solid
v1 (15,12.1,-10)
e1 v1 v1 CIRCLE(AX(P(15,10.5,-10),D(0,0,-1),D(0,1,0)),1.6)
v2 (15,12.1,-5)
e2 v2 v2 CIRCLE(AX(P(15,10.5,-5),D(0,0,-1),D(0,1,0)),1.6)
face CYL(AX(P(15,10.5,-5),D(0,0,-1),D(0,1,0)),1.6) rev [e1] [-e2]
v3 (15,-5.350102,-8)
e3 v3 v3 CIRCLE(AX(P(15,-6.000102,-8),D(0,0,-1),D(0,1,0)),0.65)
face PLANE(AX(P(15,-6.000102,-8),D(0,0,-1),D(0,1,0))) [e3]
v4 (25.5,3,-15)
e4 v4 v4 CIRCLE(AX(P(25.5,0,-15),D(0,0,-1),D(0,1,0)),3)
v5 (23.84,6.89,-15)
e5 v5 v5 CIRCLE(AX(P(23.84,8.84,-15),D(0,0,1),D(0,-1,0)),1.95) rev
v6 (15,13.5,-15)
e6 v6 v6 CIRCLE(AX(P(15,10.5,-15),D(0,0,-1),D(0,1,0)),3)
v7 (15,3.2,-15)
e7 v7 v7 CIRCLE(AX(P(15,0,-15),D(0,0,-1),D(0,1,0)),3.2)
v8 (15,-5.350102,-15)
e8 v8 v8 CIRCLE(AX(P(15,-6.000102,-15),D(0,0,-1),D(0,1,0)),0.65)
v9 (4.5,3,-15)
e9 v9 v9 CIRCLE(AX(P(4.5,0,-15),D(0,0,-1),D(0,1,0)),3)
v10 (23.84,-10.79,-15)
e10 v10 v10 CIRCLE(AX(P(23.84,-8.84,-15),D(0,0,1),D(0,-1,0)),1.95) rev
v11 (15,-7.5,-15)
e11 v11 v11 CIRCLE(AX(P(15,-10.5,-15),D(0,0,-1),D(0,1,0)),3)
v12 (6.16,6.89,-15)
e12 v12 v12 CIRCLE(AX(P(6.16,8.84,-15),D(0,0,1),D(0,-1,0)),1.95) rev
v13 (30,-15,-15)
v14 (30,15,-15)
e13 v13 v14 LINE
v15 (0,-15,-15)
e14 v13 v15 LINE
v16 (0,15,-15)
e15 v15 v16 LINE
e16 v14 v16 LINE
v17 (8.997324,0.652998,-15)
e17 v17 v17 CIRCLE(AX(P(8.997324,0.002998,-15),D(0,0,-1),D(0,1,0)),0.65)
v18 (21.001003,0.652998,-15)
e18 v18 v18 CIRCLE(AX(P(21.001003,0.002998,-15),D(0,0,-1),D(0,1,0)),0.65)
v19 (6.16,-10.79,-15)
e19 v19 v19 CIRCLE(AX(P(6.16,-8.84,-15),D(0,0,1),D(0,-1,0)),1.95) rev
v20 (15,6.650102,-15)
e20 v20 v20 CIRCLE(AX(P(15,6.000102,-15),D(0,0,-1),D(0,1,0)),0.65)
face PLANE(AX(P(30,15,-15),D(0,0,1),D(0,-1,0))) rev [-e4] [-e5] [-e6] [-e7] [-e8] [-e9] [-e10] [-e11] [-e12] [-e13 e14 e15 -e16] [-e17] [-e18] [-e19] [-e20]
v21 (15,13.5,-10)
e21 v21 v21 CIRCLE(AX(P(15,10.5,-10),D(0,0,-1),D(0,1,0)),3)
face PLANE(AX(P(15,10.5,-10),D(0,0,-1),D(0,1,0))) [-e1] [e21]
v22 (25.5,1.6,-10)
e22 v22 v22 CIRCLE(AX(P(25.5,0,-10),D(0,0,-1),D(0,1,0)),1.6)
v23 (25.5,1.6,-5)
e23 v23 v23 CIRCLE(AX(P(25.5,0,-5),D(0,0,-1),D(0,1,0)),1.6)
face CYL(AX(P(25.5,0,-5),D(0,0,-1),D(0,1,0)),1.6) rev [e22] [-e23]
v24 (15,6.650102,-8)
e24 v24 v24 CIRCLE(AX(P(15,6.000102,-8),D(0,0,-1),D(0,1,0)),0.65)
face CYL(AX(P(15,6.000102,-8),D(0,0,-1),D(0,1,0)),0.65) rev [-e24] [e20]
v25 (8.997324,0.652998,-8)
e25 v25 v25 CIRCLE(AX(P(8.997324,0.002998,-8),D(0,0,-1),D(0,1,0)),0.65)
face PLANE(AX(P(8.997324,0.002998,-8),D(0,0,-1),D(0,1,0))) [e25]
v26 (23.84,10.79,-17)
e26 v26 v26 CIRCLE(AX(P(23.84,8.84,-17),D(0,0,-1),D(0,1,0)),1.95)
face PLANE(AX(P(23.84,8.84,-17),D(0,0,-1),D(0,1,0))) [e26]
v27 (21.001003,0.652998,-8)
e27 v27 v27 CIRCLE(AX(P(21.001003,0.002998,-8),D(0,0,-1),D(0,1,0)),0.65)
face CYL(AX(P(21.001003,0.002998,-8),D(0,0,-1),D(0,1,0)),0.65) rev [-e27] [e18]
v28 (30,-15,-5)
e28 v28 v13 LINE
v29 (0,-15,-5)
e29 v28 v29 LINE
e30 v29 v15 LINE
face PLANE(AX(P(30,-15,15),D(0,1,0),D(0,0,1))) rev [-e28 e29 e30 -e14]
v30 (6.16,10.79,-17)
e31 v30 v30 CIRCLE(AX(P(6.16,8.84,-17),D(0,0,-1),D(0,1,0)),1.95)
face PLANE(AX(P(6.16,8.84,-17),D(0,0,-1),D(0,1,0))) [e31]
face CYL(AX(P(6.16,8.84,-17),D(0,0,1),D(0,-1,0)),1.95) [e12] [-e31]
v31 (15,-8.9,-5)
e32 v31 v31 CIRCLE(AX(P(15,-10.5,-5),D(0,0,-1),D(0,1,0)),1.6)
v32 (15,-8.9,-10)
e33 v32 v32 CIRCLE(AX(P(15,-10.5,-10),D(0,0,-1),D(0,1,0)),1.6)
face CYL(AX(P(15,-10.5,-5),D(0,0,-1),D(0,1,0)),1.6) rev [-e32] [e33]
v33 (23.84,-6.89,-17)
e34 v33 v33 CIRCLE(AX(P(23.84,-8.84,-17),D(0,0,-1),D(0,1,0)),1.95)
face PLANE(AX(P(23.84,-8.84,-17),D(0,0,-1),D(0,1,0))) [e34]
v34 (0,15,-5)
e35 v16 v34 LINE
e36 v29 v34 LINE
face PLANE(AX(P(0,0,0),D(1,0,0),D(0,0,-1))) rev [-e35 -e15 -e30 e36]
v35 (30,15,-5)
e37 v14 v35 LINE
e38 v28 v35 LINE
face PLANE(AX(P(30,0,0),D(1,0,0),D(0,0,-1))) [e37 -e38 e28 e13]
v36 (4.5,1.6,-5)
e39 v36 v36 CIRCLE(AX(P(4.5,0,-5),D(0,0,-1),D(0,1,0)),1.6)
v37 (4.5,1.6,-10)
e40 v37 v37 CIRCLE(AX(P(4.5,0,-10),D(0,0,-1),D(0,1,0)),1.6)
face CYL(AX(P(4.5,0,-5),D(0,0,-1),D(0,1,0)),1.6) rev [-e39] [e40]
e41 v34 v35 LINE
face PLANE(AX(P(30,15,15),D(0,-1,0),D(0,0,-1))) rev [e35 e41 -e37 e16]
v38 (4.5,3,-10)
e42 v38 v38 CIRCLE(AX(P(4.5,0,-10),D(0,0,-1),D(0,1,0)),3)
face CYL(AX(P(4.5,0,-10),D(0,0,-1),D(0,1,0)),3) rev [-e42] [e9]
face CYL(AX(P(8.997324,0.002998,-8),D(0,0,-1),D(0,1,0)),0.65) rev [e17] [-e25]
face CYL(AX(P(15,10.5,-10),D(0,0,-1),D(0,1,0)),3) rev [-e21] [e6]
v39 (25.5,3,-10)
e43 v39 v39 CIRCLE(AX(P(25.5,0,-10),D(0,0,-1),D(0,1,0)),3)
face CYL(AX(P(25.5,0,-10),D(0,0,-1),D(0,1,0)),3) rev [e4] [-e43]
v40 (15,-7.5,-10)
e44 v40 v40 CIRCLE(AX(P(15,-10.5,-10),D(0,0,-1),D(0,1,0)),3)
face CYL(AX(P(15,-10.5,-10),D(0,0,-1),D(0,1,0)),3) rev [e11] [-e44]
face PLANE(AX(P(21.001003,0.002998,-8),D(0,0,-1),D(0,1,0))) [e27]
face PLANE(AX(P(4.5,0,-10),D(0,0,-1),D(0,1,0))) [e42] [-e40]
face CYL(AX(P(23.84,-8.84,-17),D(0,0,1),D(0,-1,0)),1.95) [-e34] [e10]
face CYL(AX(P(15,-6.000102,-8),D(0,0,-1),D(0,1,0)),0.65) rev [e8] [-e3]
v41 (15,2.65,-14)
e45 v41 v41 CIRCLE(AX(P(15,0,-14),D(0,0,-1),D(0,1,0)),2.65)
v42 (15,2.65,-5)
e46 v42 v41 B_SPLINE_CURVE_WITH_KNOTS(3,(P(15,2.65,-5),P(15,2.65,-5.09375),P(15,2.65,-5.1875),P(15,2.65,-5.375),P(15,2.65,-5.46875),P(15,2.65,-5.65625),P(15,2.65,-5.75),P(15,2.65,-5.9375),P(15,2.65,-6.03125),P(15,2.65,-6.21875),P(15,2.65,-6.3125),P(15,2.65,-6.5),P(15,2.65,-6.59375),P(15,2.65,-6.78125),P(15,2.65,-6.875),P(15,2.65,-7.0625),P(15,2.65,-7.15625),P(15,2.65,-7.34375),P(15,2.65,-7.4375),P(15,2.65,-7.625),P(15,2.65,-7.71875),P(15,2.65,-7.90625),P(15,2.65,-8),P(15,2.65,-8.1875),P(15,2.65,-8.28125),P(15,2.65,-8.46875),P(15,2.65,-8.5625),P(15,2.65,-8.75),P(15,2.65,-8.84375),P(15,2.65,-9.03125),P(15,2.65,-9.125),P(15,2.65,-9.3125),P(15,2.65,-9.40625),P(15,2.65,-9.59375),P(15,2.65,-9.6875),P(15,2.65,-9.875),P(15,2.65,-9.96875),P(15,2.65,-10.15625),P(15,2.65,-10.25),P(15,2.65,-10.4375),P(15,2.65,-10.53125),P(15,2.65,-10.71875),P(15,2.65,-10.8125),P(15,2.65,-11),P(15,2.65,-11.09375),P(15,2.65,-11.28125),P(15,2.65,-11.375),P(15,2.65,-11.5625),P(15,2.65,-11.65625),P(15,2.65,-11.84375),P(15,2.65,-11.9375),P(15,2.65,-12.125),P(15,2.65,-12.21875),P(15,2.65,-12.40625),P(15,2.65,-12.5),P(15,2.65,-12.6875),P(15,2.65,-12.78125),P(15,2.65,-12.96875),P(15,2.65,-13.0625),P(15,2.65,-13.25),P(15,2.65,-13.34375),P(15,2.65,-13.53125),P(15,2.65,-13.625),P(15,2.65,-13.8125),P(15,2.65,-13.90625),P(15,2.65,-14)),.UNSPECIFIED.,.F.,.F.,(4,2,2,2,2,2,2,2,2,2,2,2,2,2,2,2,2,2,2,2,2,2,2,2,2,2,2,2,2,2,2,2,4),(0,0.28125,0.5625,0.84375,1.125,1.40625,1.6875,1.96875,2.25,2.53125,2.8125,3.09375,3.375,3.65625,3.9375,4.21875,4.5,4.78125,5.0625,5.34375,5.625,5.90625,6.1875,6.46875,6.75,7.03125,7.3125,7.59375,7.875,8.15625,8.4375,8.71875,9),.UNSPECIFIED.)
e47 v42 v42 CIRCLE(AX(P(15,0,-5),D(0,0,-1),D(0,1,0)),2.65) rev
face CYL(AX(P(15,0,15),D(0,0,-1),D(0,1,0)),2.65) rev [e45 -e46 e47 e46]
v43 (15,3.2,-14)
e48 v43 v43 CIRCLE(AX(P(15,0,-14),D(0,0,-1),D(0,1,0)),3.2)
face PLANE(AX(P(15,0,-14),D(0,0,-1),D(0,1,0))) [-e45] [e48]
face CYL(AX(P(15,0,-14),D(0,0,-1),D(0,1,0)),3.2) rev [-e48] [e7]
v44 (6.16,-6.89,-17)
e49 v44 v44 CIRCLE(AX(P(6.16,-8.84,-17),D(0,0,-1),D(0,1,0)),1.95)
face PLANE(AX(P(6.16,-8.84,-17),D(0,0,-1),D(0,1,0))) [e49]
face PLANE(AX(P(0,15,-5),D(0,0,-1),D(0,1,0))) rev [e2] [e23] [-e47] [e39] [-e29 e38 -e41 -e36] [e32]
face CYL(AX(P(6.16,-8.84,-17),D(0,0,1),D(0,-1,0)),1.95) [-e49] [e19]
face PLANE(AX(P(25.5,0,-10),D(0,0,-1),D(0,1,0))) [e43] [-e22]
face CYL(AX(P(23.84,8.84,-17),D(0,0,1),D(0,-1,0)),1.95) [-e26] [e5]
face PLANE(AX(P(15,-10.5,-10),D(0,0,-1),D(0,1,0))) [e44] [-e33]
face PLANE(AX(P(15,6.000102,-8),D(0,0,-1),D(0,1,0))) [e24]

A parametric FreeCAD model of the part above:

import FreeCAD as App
import Part
import Sketcher

V = App.Vector


def add_polygon(sketch, points):
    """Adds a closed chain of lines whose ends are joined by coincident constraints."""
    first, n = sketch.GeometryCount, len(points)
    for a, b in zip(points, points[1:] + points[:1]):
        sketch.addGeometry(Part.LineSegment(App.Vector(*a, 0), App.Vector(*b, 0)), False)
    for i in range(n):
        sketch.addConstraint(Sketcher.Constraint("Coincident", first + i, 2, first + (i + 1) % n, 1))

doc = App.newDocument("Part")
body = doc.addObject("PartDesign::Body", "Body")

# Sketch on YZ plane
sketch1 = doc.addObject("Sketcher::SketchObject", "Sketch")
body.addObject(sketch1)
sketch1.AttachmentSupport = (doc.YZ_Plane, [""])
sketch1.MapMode = "FlatFace"
add_polygon(sketch1, [(15, 15), (-15, 15), (-15, -15), (15, -15)])  # lines 0-3
sketch1.addConstraint([
    Sketcher.Constraint("Horizontal", 0),
    Sketcher.Constraint("Vertical", 1),
    Sketcher.Constraint("Horizontal", 2),
    Sketcher.Constraint("Vertical", 3),
    Sketcher.Constraint("Symmetric", 0, 2, 2, 2, -1, 1),
    Sketcher.Constraint("Equal", 2, 1),
    Sketcher.Constraint("DistanceX", 0, 2, 0, 1, 30.0),
])
pad1 = doc.addObject("PartDesign::Pad", "Pad")
body.addObject(pad1)
pad1.Profile = sketch1
pad1.Length = 30

# Sketch on XY plane
sketch2 = doc.addObject("Sketcher::SketchObject", "Sketch001")
body.addObject(sketch2)
sketch2.AttachmentSupport = (doc.XY_Plane, [""])
sketch2.MapMode = "FlatFace"
sketch2.AttachmentOffset = App.Placement(V(0, 0, -15), App.Rotation())
sketch2.addGeometry([
    Part.Circle(V(15, 6, 0), V(0, 0, 1), 0.7),
    Part.Circle(V(21, 0, 0), V(0, 0, 1), 0.7),
    Part.Circle(V(9, 0, 0), V(0, 0, 1), 0.7),
    Part.Circle(V(15, -6, 0), V(0, 0, 1), 0.7),
], False)
sketch2.addConstraint([
    Sketcher.Constraint("Equal", 0, 1),
    Sketcher.Constraint("Equal", 1, 2),
    Sketcher.Constraint("Equal", 2, 3),
    Sketcher.Constraint("Symmetric", 0, 3, 3, 3, -1),
    Sketcher.Constraint("Horizontal", 1, 3, 2, 3),
    Sketcher.Constraint("Diameter", 0, 1.3),
    Sketcher.Constraint("DistanceX", -1, 1, 0, 3, 15.0),
    Sketcher.Constraint("DistanceY", -1, 1, 0, 3, 6.000102),
    Sketcher.Constraint("DistanceY", 3, 3, 1, 3, 6.0031),
    Sketcher.Constraint("DistanceX", 2, 3, 1, 3, 12.003679),
    Sketcher.Constraint("DistanceX", -1, 1, 1, 3, 21.001003),
])
pocket1 = doc.addObject("PartDesign::Pocket", "Pocket")
body.addObject(pocket1)
pocket1.Profile = sketch2
pocket1.Length = 7
pocket1.Reversed = True

# Sketch on XY plane
sketch3 = doc.addObject("Sketcher::SketchObject", "Sketch002")
body.addObject(sketch3)
sketch3.AttachmentSupport = (doc.XY_Plane, [""])
sketch3.MapMode = "FlatFace"
sketch3.AttachmentOffset = App.Placement(V(0, 0, -15), App.Rotation())
sketch3.addGeometry([
    Part.Circle(V(6.2, 8.8, 0), V(0, 0, 1), 1.9),
    Part.Circle(V(23.8, 8.8, 0), V(0, 0, 1), 1.9),
    Part.Circle(V(23.8, -8.8, 0), V(0, 0, 1), 1.9),
    Part.Circle(V(6.2, -8.8, 0), V(0, 0, 1), 1.9),
], False)
sketch3.addConstraint([
    Sketcher.Constraint("Equal", 0, 1),
    Sketcher.Constraint("Equal", 1, 2),
    Sketcher.Constraint("Equal", 2, 3),
    Sketcher.Constraint("Symmetric", 1, 3, 2, 3, -1),
    Sketcher.Constraint("Symmetric", 0, 3, 3, 3, -1),
    Sketcher.Constraint("Horizontal", 0, 3, 1, 3),
    Sketcher.Constraint("Diameter", 0, 3.9),
    Sketcher.Constraint("DistanceX", -1, 1, 0, 3, 6.16),
    Sketcher.Constraint("DistanceY", -1, 1, 0, 3, 8.84),
    Sketcher.Constraint("DistanceX", -1, 1, 1, 3, 23.84),
])
pad2 = doc.addObject("PartDesign::Pad", "Pad001")
body.addObject(pad2)
pad2.Profile = sketch3
pad2.Length = 2
pad2.Reversed = True

# Sketch on XY plane
sketch4 = doc.addObject("Sketcher::SketchObject", "Sketch003")
body.addObject(sketch4)
sketch4.AttachmentSupport = (doc.XY_Plane, [""])
sketch4.MapMode = "FlatFace"
sketch4.AttachmentOffset = App.Placement(V(0, 0, -15), App.Rotation())
sketch4.addGeometry([
    Part.Circle(V(15, 0, 0), V(0, 0, 1), 3.2),
    Part.Circle(V(15, 0, 0), V(0, 0, 1), 2.5),
], False)
sketch4.addConstraint([
    Sketcher.Constraint("Coincident", 1, 3, 0, 3),
    Sketcher.Constraint("PointOnObject", 0, 3, -1),
    Sketcher.Constraint("Diameter", 1, 5.0),
    Sketcher.Constraint("Diameter", 0, 6.4),
    Sketcher.Constraint("DistanceX", -1, 1, 0, 3, 15.0),
])
pocket2 = doc.addObject("PartDesign::Pocket", "Pocket001")
body.addObject(pocket2)
pocket2.Profile = sketch4
pocket2.Length = 1
pocket2.Reversed = True

# Sketch on XY plane
sketch5 = doc.addObject("Sketcher::SketchObject", "Sketch004")
body.addObject(sketch5)
sketch5.AttachmentSupport = (doc.XY_Plane, [""])
sketch5.MapMode = "FlatFace"
sketch5.AttachmentOffset = App.Placement(V(0, 0, -15), App.Rotation())
sketch5.addGeometry(Part.Circle(V(15, 0, 0), V(0, 0, 1), 2.6), False)
sketch5.addConstraint([
    Sketcher.Constraint("PointOnObject", 0, 3, -1),
    Sketcher.Constraint("Diameter", 0, 5.3),
    Sketcher.Constraint("DistanceX", -1, 1, 0, 3, 15.0),
])
pocket3 = doc.addObject("PartDesign::Pocket", "Pocket002")
body.addObject(pocket3)
pocket3.Profile = sketch5
pocket3.Type = "ThroughAll"
pocket3.Reversed = True

# Sketch on YZ plane
sketch6 = doc.addObject("Sketcher::SketchObject", "Sketch005")
body.addObject(sketch6)
sketch6.AttachmentSupport = (doc.YZ_Plane, [""])
sketch6.MapMode = "FlatFace"
sketch6.AttachmentOffset = App.Placement(V(0, 0, 30), App.Rotation())
add_polygon(sketch6, [(15, 15), (-18, 15), (-18, -5), (15, -5)])  # lines 0-3
sketch6.addConstraint([
    Sketcher.Constraint("Horizontal", 0),
    Sketcher.Constraint("Vertical", 1),
    Sketcher.Constraint("Horizontal", 2),
    Sketcher.Constraint("Vertical", 3),
    Sketcher.Constraint("DistanceY", 1, 2, 1, 1, 20.0),
    Sketcher.Constraint("DistanceY", -1, 1, 0, 2, 15.0),
    Sketcher.Constraint("DistanceX", -1, 1, 2, 2, 15.0),
    Sketcher.Constraint("DistanceX", 0, 2, 0, 1, 32.666349),
])
pocket4 = doc.addObject("PartDesign::Pocket", "Pocket003")
body.addObject(pocket4)
pocket4.Profile = sketch6
pocket4.Type = "ThroughAll"

# Sketch on XY plane
sketch7 = doc.addObject("Sketcher::SketchObject", "Sketch006")
body.addObject(sketch7)
sketch7.AttachmentSupport = (doc.XY_Plane, [""])
sketch7.MapMode = "FlatFace"
sketch7.AttachmentOffset = App.Placement(V(0, 0, -15), App.Rotation())
sketch7.addGeometry([
    Part.Circle(V(15, 10.5, 0), V(0, 0, 1), 3),
    Part.Circle(V(15, -10.5, 0), V(0, 0, 1), 3),
    Part.Circle(V(25.5, 0, 0), V(0, 0, 1), 3),
    Part.Circle(V(4.5, 0, 0), V(0, 0, 1), 3),
], False)
sketch7.addConstraint([
    Sketcher.Constraint("Equal", 0, 1),
    Sketcher.Constraint("Equal", 1, 2),
    Sketcher.Constraint("Equal", 2, 3),
    Sketcher.Constraint("Symmetric", 0, 3, 1, 3, -1),
    Sketcher.Constraint("PointOnObject", 2, 3, -1),
    Sketcher.Constraint("PointOnObject", 3, 3, -1),
    Sketcher.Constraint("Diameter", 0, 6.0),
    Sketcher.Constraint("DistanceX", -1, 1, 0, 3, 15.0),
    Sketcher.Constraint("DistanceY", 1, 3, 0, 3, 21.0),
    Sketcher.Constraint("DistanceX", 3, 3, 2, 3, 21.0),
    Sketcher.Constraint("DistanceX", -1, 1, 2, 3, 25.5),
])
pocket5 = doc.addObject("PartDesign::Pocket", "Pocket004")
body.addObject(pocket5)
pocket5.Profile = sketch7
pocket5.Length = 5
pocket5.Reversed = True

# Sketch on XY plane
sketch8 = doc.addObject("Sketcher::SketchObject", "Sketch007")
body.addObject(sketch8)
sketch8.AttachmentSupport = (doc.XY_Plane, [""])
sketch8.MapMode = "FlatFace"
sketch8.AttachmentOffset = App.Placement(V(0, 0, -10), App.Rotation())
sketch8.addGeometry([
    Part.Circle(V(4.5, 0, 0), V(0, 0, 1), 1.6),
    Part.Circle(V(15, -10.5, 0), V(0, 0, 1), 1.6),
    Part.Circle(V(15, 10.5, 0), V(0, 0, 1), 1.6),
    Part.Circle(V(25.5, 0, 0), V(0, 0, 1), 1.6),
], False)
sketch8.addConstraint([
    Sketcher.Constraint("Equal", 0, 1),
    Sketcher.Constraint("Equal", 1, 2),
    Sketcher.Constraint("Equal", 2, 3),
    Sketcher.Constraint("Symmetric", 1, 3, 2, 3, -1),
    Sketcher.Constraint("PointOnObject", 0, 3, -1),
    Sketcher.Constraint("PointOnObject", 3, 3, -1),
    Sketcher.Constraint("Diameter", 0, 3.2),
    Sketcher.Constraint("DistanceX", -1, 1, 1, 3, 15.0),
    Sketcher.Constraint("DistanceY", 1, 3, 2, 3, 21.0),
    Sketcher.Constraint("DistanceX", 0, 3, 3, 3, 21.0),
    Sketcher.Constraint("DistanceX", -1, 1, 0, 3, 4.5),
])
pocket6 = doc.addObject("PartDesign::Pocket", "Pocket005")
body.addObject(pocket6)
pocket6.Profile = sketch8
pocket6.Type = "ThroughAll"
pocket6.Reversed = True

doc.recompute()
